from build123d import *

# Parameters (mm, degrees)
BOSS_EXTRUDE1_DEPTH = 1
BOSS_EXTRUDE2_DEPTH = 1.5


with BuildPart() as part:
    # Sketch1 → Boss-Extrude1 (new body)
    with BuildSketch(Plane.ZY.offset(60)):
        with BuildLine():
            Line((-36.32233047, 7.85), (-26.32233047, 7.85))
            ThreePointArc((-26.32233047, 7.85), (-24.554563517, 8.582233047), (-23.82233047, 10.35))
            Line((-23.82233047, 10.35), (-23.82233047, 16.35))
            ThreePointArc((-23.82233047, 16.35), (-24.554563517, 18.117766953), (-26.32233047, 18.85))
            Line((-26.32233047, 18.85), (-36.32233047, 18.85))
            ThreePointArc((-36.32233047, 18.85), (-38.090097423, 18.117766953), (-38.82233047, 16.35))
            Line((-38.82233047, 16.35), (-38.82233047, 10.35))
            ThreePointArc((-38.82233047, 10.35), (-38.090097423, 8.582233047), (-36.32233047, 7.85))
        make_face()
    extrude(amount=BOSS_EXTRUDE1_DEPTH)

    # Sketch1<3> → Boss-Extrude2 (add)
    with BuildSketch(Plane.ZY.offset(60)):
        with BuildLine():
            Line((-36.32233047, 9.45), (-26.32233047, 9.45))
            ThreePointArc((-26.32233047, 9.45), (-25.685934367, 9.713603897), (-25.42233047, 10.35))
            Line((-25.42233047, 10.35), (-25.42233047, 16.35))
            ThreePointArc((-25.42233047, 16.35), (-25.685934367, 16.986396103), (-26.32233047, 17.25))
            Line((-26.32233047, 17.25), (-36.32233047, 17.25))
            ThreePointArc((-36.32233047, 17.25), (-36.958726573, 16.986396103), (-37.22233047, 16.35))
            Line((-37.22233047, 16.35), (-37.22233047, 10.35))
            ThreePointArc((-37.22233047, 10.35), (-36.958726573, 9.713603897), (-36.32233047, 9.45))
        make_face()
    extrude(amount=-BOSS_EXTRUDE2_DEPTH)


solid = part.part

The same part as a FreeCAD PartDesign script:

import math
import FreeCAD as App
import Part
import Sketcher

V = App.Vector
Q = App.Units.Quantity

doc = App.newDocument("Part")
body = doc.addObject("PartDesign::Body", "Body")

# Sketch on YZ plane
sketch1 = body.newObject("Sketcher::SketchObject", "Sketch")
sketch1.AttachmentSupport = (doc.getObject("YZ_Plane"), [""])
sketch1.MapMode = "FlatFace"
sketch1.AttachmentOffset = App.Placement(V(0, 0, -60), App.Rotation())
sketch1.addGeometry([
    Part.LineSegment(V(7.8, -36.3, 0), V(7.8, -26.3, 0)),  # 0
    Part.ArcOfCircle(Part.Circle(V(10.3, -26.3, 0), V(0, 0, 1), 2.5), math.radians(90), math.radians(180)),  # 1
    Part.LineSegment(V(10.3, -23.8, 0), V(16.4, -23.8, 0)),  # 2
    Part.ArcOfCircle(Part.Circle(V(16.4, -26.3, 0), V(0, 0, 1), 2.5), math.radians(0), math.radians(90)),  # 3
    Part.LineSegment(V(18.9, -26.3, 0), V(18.9, -36.3, 0)),  # 4
    Part.ArcOfCircle(Part.Circle(V(16.4, -36.3, 0), V(0, 0, 1), 2.5), math.radians(-90), math.radians(0)),  # 5
    Part.LineSegment(V(16.4, -38.8, 0), V(10.3, -38.8, 0)),  # 6
    Part.ArcOfCircle(Part.Circle(V(10.3, -36.3, 0), V(0, 0, 1), 2.5), math.radians(180), math.radians(270)),  # 7
], False)
sketch1.addConstraint([
    Sketcher.Constraint("Tangent", 0, 2, 1, 2),
    Sketcher.Constraint("Tangent", 1, 1, 2, 1),
    Sketcher.Constraint("Tangent", 2, 2, 3, 2),
    Sketcher.Constraint("Tangent", 3, 1, 4, 1),
    Sketcher.Constraint("Tangent", 4, 2, 5, 2),
    Sketcher.Constraint("Tangent", 5, 1, 6, 1),
    Sketcher.Constraint("Tangent", 6, 2, 7, 2),
    Sketcher.Constraint("Tangent", 7, 1, 0, 1),
    Sketcher.Constraint("Vertical", 0),
    Sketcher.Constraint("Horizontal", 2),
    Sketcher.Constraint("Vertical", 4),
    Sketcher.Constraint("Horizontal", 6),
    Sketcher.Constraint("Equal", 1, 3),
    Sketcher.Constraint("Equal", 3, 5),
    Sketcher.Constraint("Equal", 5, 7),
    Sketcher.Constraint("Radius", 1, Q("2.5 mm")),
    Sketcher.Constraint("DistanceX", 2, 1, 2, 2, Q("6 mm")),
    Sketcher.Constraint("DistanceY", 0, 1, 0, 2, Q("10 mm")),
    Sketcher.Constraint("DistanceX", -1, 1, 1, 3, Q("10.35 mm")),
    Sketcher.Constraint("DistanceY", 1, 3, -1, 1, Q("26.32233 mm")),
])
pad1 = body.newObject("PartDesign::Pad", "Pad")
pad1.Profile = sketch1
pad1.Length = 1
pad1.Reversed = True

# Sketch on YZ plane
sketch2 = body.newObject("Sketcher::SketchObject", "Sketch001")
sketch2.AttachmentSupport = (doc.getObject("YZ_Plane"), [""])
sketch2.MapMode = "FlatFace"
sketch2.AttachmentOffset = App.Placement(V(0, 0, -60), App.Rotation())
sketch2.addGeometry([
    Part.LineSegment(V(9.4, -36.3, 0), V(9.4, -26.3, 0)),  # 0
    Part.ArcOfCircle(Part.Circle(V(10.3, -26.3, 0), V(0, 0, 1), 0.9), math.radians(90), math.radians(180)),  # 1
    Part.LineSegment(V(10.3, -25.4, 0), V(16.4, -25.4, 0)),  # 2
    Part.ArcOfCircle(Part.Circle(V(16.4, -26.3, 0), V(0, 0, 1), 0.9), math.radians(0), math.radians(90)),  # 3
    Part.LineSegment(V(17.2, -26.3, 0), V(17.2, -36.3, 0)),  # 4
    Part.ArcOfCircle(Part.Circle(V(16.4, -36.3, 0), V(0, 0, 1), 0.9), math.radians(-90), math.radians(0)),  # 5
    Part.LineSegment(V(16.4, -37.2, 0), V(10.3, -37.2, 0)),  # 6
    Part.ArcOfCircle(Part.Circle(V(10.3, -36.3, 0), V(0, 0, 1), 0.9), math.radians(180), math.radians(270)),  # 7
], False)
sketch2.addConstraint([
    Sketcher.Constraint("Tangent", 0, 2, 1, 2),
    Sketcher.Constraint("Tangent", 1, 1, 2, 1),
    Sketcher.Constraint("Tangent", 2, 2, 3, 2),
    Sketcher.Constraint("Tangent", 3, 1, 4, 1),
    Sketcher.Constraint("Tangent", 4, 2, 5, 2),
    Sketcher.Constraint("Tangent", 5, 1, 6, 1),
    Sketcher.Constraint("Tangent", 6, 2, 7, 2),
    Sketcher.Constraint("Tangent", 7, 1, 0, 1),
    Sketcher.Constraint("Vertical", 0),
    Sketcher.Constraint("Horizontal", 2),
    Sketcher.Constraint("Vertical", 4),
    Sketcher.Constraint("Horizontal", 6),
    Sketcher.Constraint("Equal", 1, 3),
    Sketcher.Constraint("Equal", 3, 5),
    Sketcher.Constraint("Equal", 5, 7),
    Sketcher.Constraint("Radius", 1, Q("0.9 mm")),
    Sketcher.Constraint("DistanceX", 2, 1, 2, 2, Q("6 mm")),
    Sketcher.Constraint("DistanceY", 0, 1, 0, 2, Q("10 mm")),
    Sketcher.Constraint("DistanceX", -1, 1, 1, 3, Q("10.35 mm")),
    Sketcher.Constraint("DistanceY", 1, 3, -1, 1, Q("26.32233 mm")),
])
pad2 = body.newObject("PartDesign::Pad", "Pad001")
pad2.Profile = sketch2
pad2.Length = 1.5

doc.recompute()
